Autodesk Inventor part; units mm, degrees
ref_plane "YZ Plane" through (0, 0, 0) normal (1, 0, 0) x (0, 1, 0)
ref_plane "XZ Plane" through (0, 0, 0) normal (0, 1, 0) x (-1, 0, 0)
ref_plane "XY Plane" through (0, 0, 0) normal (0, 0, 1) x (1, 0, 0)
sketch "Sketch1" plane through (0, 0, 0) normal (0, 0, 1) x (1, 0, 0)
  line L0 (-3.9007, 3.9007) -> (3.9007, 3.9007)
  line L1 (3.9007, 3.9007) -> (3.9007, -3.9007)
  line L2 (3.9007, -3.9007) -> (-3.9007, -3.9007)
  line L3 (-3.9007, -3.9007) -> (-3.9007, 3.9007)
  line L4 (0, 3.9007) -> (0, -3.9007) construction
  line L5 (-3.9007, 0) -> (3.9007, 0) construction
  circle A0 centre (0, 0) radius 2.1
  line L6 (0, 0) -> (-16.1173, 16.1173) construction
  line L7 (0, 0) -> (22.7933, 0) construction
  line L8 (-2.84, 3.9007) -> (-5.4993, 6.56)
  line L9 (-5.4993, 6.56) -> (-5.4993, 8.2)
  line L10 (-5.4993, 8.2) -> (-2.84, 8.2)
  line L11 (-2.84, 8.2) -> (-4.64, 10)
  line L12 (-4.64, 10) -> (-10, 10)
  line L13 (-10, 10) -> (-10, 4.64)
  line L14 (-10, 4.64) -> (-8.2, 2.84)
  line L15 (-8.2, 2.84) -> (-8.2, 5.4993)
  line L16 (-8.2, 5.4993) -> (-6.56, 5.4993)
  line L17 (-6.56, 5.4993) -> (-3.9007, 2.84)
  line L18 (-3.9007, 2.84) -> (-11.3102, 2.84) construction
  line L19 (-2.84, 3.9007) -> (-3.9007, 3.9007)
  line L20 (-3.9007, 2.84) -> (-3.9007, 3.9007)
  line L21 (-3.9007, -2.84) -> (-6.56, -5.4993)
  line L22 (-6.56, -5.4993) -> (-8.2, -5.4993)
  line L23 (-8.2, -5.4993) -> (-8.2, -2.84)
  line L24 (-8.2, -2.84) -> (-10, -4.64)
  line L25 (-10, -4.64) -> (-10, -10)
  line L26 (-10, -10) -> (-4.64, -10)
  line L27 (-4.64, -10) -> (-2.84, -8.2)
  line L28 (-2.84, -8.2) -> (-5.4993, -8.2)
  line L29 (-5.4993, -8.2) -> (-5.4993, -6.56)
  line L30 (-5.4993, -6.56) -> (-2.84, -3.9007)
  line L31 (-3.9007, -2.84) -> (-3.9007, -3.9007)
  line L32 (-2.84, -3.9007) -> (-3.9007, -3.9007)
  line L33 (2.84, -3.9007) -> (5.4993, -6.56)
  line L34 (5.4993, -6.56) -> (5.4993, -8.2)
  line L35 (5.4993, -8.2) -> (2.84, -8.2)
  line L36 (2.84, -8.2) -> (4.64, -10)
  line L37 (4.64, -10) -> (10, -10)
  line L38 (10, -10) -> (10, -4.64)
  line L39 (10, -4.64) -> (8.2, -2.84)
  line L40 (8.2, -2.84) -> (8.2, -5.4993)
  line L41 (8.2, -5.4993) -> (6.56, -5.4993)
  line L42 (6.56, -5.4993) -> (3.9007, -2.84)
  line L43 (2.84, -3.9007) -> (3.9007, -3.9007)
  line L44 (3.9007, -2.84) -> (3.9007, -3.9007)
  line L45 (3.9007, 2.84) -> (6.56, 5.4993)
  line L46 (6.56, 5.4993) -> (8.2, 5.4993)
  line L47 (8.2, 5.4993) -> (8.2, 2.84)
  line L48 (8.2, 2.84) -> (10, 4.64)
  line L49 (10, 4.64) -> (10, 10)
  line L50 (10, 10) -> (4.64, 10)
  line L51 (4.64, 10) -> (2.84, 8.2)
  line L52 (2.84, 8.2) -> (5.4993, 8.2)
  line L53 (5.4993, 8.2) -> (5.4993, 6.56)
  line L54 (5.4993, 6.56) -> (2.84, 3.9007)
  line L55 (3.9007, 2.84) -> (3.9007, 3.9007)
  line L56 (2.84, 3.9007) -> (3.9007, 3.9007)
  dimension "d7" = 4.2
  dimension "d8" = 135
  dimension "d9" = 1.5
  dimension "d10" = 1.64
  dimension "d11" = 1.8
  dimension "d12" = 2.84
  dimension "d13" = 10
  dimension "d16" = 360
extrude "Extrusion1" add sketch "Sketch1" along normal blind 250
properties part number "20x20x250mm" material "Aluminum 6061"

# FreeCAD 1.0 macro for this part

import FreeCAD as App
import Part
import Sketcher

V = App.Vector


def add_polygon(sketch, points):
    """Adds a closed chain of lines whose ends are joined by coincident constraints."""
    first, n = sketch.GeometryCount, len(points)
    for a, b in zip(points, points[1:] + points[:1]):
        sketch.addGeometry(Part.LineSegment(App.Vector(*a, 0), App.Vector(*b, 0)), False)
    for i in range(n):
        sketch.addConstraint(Sketcher.Constraint("Coincident", first + i, 2, first + (i + 1) % n, 1))

doc = App.newDocument("Part")
params = doc.addObject("Spreadsheet::Sheet", "Params")
for row, (alias, value) in enumerate([
    ("sketch1_diameter", "4.2 mm"),
    ("sketch1_width", "1.64 mm"),
    ("pad1_length", "250 mm"),
], start=1):
    params.set(f"A{row}", alias)
    params.set(f"B{row}", "=" + value)
    params.setAlias(f"B{row}", alias)

body = doc.addObject("PartDesign::Body", "Body")

sketch1 = doc.addObject("Sketcher::SketchObject", "Sketch")
body.addObject(sketch1)
sketch1.AttachmentSupport = (doc.XY_Plane, [""])
sketch1.MapMode = "FlatFace"
add_polygon(sketch1, [(-6.6, 5.5), (-3.9, 2.8), (-3.9, -2.8), (-6.6, -5.5), (-8.2, -5.5), (-8.2, -2.8), (-10, -4.6), (-10, -10), (-4.6, -10), (-2.8, -8.2), (-5.5, -8.2), (-5.5, -6.6), (-2.8, -3.9), (2.8, -3.9), (5.5, -6.6), (5.5, -8.2), (2.8, -8.2), (4.6, -10), (10, -10), (10, -4.6), (8.2, -2.8), (8.2, -5.5), (6.6, -5.5), (3.9, -2.8), (3.9, 2.8), (6.6, 5.5), (8.2, 5.5), (8.2, 2.8), (10, 4.6), (10, 10), (4.6, 10), (2.8, 8.2), (5.5, 8.2), (5.5, 6.6), (2.8, 3.9), (-2.8, 3.9), (-5.5, 6.6), (-5.5, 8.2), (-2.8, 8.2), (-4.6, 10), (-10, 10), (-10, 4.6), (-8.2, 2.8), (-8.2, 5.5)])
sketch1.addGeometry(Part.Circle(V(0, 0, 0), V(0, 0, 1), 2.1), False)
sketch1.addConstraint([
    Sketcher.Constraint("Vertical", 1),
    Sketcher.Constraint("Horizontal", 3),
    Sketcher.Constraint("Vertical", 4),
    Sketcher.Constraint("Vertical", 6),
    Sketcher.Constraint("Horizontal", 7),
    Sketcher.Constraint("Horizontal", 9),
    Sketcher.Constraint("Vertical", 10),
    Sketcher.Constraint("Horizontal", 12),
    Sketcher.Constraint("Vertical", 14),
    Sketcher.Constraint("Horizontal", 15),
    Sketcher.Constraint("Horizontal", 17),
    Sketcher.Constraint("Vertical", 18),
    Sketcher.Constraint("Vertical", 20),
    Sketcher.Constraint("Horizontal", 21),
    Sketcher.Constraint("Vertical", 23),
    Sketcher.Constraint("Horizontal", 25),
    Sketcher.Constraint("Vertical", 26),
    Sketcher.Constraint("Vertical", 28),
    Sketcher.Constraint("Horizontal", 29),
    Sketcher.Constraint("Horizontal", 31),
    Sketcher.Constraint("Vertical", 32),
    Sketcher.Constraint("Horizontal", 34),
    Sketcher.Constraint("Vertical", 36),
    Sketcher.Constraint("Horizontal", 37),
    Sketcher.Constraint("Horizontal", 39),
    Sketcher.Constraint("Vertical", 40),
    Sketcher.Constraint("Vertical", 42),
    Sketcher.Constraint("Horizontal", 43),
    Sketcher.Constraint("Coincident", 44, 3, -1, 1),
    Sketcher.Constraint("Symmetric", 0, 2, 22, 2, -1, 1),
    Sketcher.Constraint("Symmetric", 2, 2, 24, 2, -1, 1),
    Sketcher.Constraint("Symmetric", 4, 2, 26, 2, -1, 1),
    Sketcher.Constraint("Symmetric", 5, 2, 27, 2, -1, 1),
    Sketcher.Constraint("Symmetric", 7, 2, 29, 2, -1, 1),
    Sketcher.Constraint("Symmetric", 8, 2, 30, 2, -1, 1),
    Sketcher.Constraint("Symmetric", 10, 2, 32, 2, -1, 1),
    Sketcher.Constraint("Symmetric", 11, 2, 33, 2, -1, 1),
    Sketcher.Constraint("Symmetric", 13, 2, 35, 2, -1, 1),
    Sketcher.Constraint("Symmetric", 15, 2, 37, 2, -1, 1),
    Sketcher.Constraint("Symmetric", 16, 2, 38, 2, -1, 1),
    Sketcher.Constraint("Symmetric", 18, 2, 40, 2, -1, 1),
    Sketcher.Constraint("Symmetric", 19, 2, 41, 2, -1, 1),
    Sketcher.Constraint("Symmetric", 21, 2, 43, 2, -1, 1),
    Sketcher.Constraint("Symmetric", 10, 2, 13, 2, -2),
    Sketcher.Constraint("Symmetric", 8, 2, 15, 2, -2),
    Sketcher.Constraint("Symmetric", 7, 2, 16, 2, -2),
    Sketcher.Constraint("Symmetric", 5, 2, 18, 2, -2),
    Sketcher.Constraint("Symmetric", 4, 2, 19, 2, -2),
    Sketcher.Constraint("Symmetric", 2, 2, 21, 2, -2),
    Sketcher.Constraint("Perpendicular", 0, 2),
    Sketcher.Constraint("Parallel", 2, 5),
    Sketcher.Constraint("Parallel", 5, 8),
    Sketcher.Constraint("Parallel", 8, 11),
    Sketcher.Constraint("Perpendicular", 11, 13),
    Sketcher.Constraint("Parallel", 13, 16),
    Sketcher.Constraint("Perpendicular", 22, 24),
    Sketcher.Constraint("Perpendicular", 33, 35),
    Sketcher.Constraint("Horizontal", 1, 2, 4, 2),
    Sketcher.Constraint("Vertical", 8, 2, 11, 2),
    Sketcher.Constraint("Equal", 34, 1),
    Sketcher.Constraint("Equal", 37, 4),
    Sketcher.Constraint("Equal", 39, 6),
    Sketcher.Constraint("Equal", 43, 10),
    Sketcher.Constraint("Equal", 5, 8),
    Sketcher.Constraint("Diameter", 44, 4.2),
    Sketcher.Constraint("DistanceX", 5, 2, -1, 1, 10.0),
    Sketcher.Constraint("DistanceX", 3, 2, 3, 1, 1.64),
    Sketcher.Constraint("DistanceX", 5, 2, 3, 2, 1.8),
    Sketcher.Constraint("DistanceY", -1, 1, 0, 2, 2.84),
    Sketcher.Constraint("DistanceX", 9, 2, 9, 1, 2.6593),
])
sketch1.setExpression("Constraints[108]", "Params.sketch1_diameter")
sketch1.setExpression("Constraints[110]", "Params.sketch1_width")
pad1 = doc.addObject("PartDesign::Pad", "Pad")
body.addObject(pad1)
pad1.Profile = sketch1
pad1.setExpression("Length", "Params.pad1_length")

doc.recompute()
